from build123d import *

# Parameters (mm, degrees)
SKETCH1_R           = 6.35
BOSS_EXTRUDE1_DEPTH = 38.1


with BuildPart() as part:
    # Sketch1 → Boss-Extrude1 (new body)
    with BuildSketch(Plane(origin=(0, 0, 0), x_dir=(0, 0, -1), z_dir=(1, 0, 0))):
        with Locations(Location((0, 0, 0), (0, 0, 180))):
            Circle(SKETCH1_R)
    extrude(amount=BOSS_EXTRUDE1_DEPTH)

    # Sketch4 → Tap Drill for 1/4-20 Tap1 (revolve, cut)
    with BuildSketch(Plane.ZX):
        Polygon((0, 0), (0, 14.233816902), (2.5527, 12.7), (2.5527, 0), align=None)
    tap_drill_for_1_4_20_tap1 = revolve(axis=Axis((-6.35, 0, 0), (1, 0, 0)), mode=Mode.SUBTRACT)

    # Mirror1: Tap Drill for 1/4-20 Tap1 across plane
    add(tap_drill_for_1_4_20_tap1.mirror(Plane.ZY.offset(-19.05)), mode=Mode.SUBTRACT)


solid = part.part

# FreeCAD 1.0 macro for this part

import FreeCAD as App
import Part
import Sketcher
Q = App.Units.Quantity


def add_polygon(sketch, points):
    """Adds a closed chain of lines whose ends are joined by coincident constraints."""
    first, n = sketch.GeometryCount, len(points)
    for a, b in zip(points, points[1:] + points[:1]):
        sketch.addGeometry(Part.LineSegment(App.Vector(*a, 0), App.Vector(*b, 0)), False)
    for i in range(n):
        sketch.addConstraint(Sketcher.Constraint("Coincident", first + i, 2, first + (i + 1) % n, 1))

doc = App.newDocument("Part")
body = doc.addObject("PartDesign::Body", "Body")

sketch1 = doc.addObject("Sketcher::SketchObject", "Sketch")
body.addObject(sketch1)
sketch1.AttachmentSupport = (doc.YZ_Plane, [""])
sketch1.MapMode = "FlatFace"
sketch1.addGeometry(Part.Circle(App.Vector(0, 0, 0), App.Vector(0, 0, 1), 6), False)
sketch1.addConstraint([
    Sketcher.Constraint("Coincident", 0, 3, -1, 1),
    Sketcher.Constraint("Diameter", 0, Q("0.5 in")),
])
pad1 = doc.addObject("PartDesign::Pad", "Pad")
body.addObject(pad1)
pad1.Profile = sketch1
pad1.Length = Q("1.5 in")

sketch2 = doc.addObject("Sketcher::SketchObject", "Sketch001")
body.addObject(sketch2)
sketch2.AttachmentSupport = (doc.XZ_Plane, [""])
sketch2.MapMode = "FlatFace"
add_polygon(sketch2, [(14.2, 0), (0, 0), (0, 2.6), (12.7, 2.6)])
sketch2.addConstraint([
    Sketcher.Constraint("Horizontal", 0),
    Sketcher.Constraint("Vertical", 1),
    Sketcher.Constraint("Horizontal", 2),
    Sketcher.Constraint("Coincident", 0, 2, -1, 1),
    Sketcher.Constraint("DistanceX", 2, 1, 2, 2, Q("0.5 in")),
    Sketcher.Constraint("Angle", 3, Q("-59 deg")),
    Sketcher.Constraint("DistanceY", 1, 1, 1, 2, Q("0.1005 in")),
])
groove = doc.addObject("PartDesign::Groove", "Groove")
body.addObject(groove)
groove.Profile = sketch2
groove.ReferenceAxis = (sketch2, ["H_Axis"])
groove.Angle = 360
doc.recompute()

datumplane = doc.addObject("PartDesign::Plane", "DatumPlane")
body.addObject(datumplane)
datumplane.AttachmentSupport = (doc.YZ_Plane, [""])
datumplane.MapMode = "FlatFace"
datumplane.AttachmentOffset = App.Placement(App.Vector(0, 0, 0.75 * 25.4), App.Rotation())
mirrored = doc.addObject("PartDesign::Mirrored", "Mirrored")
body.addObject(mirrored)
mirrored.Originals = [groove]
mirrored.MirrorPlane = (datumplane, [""])
body.Tip = mirrored

doc.recompute()
